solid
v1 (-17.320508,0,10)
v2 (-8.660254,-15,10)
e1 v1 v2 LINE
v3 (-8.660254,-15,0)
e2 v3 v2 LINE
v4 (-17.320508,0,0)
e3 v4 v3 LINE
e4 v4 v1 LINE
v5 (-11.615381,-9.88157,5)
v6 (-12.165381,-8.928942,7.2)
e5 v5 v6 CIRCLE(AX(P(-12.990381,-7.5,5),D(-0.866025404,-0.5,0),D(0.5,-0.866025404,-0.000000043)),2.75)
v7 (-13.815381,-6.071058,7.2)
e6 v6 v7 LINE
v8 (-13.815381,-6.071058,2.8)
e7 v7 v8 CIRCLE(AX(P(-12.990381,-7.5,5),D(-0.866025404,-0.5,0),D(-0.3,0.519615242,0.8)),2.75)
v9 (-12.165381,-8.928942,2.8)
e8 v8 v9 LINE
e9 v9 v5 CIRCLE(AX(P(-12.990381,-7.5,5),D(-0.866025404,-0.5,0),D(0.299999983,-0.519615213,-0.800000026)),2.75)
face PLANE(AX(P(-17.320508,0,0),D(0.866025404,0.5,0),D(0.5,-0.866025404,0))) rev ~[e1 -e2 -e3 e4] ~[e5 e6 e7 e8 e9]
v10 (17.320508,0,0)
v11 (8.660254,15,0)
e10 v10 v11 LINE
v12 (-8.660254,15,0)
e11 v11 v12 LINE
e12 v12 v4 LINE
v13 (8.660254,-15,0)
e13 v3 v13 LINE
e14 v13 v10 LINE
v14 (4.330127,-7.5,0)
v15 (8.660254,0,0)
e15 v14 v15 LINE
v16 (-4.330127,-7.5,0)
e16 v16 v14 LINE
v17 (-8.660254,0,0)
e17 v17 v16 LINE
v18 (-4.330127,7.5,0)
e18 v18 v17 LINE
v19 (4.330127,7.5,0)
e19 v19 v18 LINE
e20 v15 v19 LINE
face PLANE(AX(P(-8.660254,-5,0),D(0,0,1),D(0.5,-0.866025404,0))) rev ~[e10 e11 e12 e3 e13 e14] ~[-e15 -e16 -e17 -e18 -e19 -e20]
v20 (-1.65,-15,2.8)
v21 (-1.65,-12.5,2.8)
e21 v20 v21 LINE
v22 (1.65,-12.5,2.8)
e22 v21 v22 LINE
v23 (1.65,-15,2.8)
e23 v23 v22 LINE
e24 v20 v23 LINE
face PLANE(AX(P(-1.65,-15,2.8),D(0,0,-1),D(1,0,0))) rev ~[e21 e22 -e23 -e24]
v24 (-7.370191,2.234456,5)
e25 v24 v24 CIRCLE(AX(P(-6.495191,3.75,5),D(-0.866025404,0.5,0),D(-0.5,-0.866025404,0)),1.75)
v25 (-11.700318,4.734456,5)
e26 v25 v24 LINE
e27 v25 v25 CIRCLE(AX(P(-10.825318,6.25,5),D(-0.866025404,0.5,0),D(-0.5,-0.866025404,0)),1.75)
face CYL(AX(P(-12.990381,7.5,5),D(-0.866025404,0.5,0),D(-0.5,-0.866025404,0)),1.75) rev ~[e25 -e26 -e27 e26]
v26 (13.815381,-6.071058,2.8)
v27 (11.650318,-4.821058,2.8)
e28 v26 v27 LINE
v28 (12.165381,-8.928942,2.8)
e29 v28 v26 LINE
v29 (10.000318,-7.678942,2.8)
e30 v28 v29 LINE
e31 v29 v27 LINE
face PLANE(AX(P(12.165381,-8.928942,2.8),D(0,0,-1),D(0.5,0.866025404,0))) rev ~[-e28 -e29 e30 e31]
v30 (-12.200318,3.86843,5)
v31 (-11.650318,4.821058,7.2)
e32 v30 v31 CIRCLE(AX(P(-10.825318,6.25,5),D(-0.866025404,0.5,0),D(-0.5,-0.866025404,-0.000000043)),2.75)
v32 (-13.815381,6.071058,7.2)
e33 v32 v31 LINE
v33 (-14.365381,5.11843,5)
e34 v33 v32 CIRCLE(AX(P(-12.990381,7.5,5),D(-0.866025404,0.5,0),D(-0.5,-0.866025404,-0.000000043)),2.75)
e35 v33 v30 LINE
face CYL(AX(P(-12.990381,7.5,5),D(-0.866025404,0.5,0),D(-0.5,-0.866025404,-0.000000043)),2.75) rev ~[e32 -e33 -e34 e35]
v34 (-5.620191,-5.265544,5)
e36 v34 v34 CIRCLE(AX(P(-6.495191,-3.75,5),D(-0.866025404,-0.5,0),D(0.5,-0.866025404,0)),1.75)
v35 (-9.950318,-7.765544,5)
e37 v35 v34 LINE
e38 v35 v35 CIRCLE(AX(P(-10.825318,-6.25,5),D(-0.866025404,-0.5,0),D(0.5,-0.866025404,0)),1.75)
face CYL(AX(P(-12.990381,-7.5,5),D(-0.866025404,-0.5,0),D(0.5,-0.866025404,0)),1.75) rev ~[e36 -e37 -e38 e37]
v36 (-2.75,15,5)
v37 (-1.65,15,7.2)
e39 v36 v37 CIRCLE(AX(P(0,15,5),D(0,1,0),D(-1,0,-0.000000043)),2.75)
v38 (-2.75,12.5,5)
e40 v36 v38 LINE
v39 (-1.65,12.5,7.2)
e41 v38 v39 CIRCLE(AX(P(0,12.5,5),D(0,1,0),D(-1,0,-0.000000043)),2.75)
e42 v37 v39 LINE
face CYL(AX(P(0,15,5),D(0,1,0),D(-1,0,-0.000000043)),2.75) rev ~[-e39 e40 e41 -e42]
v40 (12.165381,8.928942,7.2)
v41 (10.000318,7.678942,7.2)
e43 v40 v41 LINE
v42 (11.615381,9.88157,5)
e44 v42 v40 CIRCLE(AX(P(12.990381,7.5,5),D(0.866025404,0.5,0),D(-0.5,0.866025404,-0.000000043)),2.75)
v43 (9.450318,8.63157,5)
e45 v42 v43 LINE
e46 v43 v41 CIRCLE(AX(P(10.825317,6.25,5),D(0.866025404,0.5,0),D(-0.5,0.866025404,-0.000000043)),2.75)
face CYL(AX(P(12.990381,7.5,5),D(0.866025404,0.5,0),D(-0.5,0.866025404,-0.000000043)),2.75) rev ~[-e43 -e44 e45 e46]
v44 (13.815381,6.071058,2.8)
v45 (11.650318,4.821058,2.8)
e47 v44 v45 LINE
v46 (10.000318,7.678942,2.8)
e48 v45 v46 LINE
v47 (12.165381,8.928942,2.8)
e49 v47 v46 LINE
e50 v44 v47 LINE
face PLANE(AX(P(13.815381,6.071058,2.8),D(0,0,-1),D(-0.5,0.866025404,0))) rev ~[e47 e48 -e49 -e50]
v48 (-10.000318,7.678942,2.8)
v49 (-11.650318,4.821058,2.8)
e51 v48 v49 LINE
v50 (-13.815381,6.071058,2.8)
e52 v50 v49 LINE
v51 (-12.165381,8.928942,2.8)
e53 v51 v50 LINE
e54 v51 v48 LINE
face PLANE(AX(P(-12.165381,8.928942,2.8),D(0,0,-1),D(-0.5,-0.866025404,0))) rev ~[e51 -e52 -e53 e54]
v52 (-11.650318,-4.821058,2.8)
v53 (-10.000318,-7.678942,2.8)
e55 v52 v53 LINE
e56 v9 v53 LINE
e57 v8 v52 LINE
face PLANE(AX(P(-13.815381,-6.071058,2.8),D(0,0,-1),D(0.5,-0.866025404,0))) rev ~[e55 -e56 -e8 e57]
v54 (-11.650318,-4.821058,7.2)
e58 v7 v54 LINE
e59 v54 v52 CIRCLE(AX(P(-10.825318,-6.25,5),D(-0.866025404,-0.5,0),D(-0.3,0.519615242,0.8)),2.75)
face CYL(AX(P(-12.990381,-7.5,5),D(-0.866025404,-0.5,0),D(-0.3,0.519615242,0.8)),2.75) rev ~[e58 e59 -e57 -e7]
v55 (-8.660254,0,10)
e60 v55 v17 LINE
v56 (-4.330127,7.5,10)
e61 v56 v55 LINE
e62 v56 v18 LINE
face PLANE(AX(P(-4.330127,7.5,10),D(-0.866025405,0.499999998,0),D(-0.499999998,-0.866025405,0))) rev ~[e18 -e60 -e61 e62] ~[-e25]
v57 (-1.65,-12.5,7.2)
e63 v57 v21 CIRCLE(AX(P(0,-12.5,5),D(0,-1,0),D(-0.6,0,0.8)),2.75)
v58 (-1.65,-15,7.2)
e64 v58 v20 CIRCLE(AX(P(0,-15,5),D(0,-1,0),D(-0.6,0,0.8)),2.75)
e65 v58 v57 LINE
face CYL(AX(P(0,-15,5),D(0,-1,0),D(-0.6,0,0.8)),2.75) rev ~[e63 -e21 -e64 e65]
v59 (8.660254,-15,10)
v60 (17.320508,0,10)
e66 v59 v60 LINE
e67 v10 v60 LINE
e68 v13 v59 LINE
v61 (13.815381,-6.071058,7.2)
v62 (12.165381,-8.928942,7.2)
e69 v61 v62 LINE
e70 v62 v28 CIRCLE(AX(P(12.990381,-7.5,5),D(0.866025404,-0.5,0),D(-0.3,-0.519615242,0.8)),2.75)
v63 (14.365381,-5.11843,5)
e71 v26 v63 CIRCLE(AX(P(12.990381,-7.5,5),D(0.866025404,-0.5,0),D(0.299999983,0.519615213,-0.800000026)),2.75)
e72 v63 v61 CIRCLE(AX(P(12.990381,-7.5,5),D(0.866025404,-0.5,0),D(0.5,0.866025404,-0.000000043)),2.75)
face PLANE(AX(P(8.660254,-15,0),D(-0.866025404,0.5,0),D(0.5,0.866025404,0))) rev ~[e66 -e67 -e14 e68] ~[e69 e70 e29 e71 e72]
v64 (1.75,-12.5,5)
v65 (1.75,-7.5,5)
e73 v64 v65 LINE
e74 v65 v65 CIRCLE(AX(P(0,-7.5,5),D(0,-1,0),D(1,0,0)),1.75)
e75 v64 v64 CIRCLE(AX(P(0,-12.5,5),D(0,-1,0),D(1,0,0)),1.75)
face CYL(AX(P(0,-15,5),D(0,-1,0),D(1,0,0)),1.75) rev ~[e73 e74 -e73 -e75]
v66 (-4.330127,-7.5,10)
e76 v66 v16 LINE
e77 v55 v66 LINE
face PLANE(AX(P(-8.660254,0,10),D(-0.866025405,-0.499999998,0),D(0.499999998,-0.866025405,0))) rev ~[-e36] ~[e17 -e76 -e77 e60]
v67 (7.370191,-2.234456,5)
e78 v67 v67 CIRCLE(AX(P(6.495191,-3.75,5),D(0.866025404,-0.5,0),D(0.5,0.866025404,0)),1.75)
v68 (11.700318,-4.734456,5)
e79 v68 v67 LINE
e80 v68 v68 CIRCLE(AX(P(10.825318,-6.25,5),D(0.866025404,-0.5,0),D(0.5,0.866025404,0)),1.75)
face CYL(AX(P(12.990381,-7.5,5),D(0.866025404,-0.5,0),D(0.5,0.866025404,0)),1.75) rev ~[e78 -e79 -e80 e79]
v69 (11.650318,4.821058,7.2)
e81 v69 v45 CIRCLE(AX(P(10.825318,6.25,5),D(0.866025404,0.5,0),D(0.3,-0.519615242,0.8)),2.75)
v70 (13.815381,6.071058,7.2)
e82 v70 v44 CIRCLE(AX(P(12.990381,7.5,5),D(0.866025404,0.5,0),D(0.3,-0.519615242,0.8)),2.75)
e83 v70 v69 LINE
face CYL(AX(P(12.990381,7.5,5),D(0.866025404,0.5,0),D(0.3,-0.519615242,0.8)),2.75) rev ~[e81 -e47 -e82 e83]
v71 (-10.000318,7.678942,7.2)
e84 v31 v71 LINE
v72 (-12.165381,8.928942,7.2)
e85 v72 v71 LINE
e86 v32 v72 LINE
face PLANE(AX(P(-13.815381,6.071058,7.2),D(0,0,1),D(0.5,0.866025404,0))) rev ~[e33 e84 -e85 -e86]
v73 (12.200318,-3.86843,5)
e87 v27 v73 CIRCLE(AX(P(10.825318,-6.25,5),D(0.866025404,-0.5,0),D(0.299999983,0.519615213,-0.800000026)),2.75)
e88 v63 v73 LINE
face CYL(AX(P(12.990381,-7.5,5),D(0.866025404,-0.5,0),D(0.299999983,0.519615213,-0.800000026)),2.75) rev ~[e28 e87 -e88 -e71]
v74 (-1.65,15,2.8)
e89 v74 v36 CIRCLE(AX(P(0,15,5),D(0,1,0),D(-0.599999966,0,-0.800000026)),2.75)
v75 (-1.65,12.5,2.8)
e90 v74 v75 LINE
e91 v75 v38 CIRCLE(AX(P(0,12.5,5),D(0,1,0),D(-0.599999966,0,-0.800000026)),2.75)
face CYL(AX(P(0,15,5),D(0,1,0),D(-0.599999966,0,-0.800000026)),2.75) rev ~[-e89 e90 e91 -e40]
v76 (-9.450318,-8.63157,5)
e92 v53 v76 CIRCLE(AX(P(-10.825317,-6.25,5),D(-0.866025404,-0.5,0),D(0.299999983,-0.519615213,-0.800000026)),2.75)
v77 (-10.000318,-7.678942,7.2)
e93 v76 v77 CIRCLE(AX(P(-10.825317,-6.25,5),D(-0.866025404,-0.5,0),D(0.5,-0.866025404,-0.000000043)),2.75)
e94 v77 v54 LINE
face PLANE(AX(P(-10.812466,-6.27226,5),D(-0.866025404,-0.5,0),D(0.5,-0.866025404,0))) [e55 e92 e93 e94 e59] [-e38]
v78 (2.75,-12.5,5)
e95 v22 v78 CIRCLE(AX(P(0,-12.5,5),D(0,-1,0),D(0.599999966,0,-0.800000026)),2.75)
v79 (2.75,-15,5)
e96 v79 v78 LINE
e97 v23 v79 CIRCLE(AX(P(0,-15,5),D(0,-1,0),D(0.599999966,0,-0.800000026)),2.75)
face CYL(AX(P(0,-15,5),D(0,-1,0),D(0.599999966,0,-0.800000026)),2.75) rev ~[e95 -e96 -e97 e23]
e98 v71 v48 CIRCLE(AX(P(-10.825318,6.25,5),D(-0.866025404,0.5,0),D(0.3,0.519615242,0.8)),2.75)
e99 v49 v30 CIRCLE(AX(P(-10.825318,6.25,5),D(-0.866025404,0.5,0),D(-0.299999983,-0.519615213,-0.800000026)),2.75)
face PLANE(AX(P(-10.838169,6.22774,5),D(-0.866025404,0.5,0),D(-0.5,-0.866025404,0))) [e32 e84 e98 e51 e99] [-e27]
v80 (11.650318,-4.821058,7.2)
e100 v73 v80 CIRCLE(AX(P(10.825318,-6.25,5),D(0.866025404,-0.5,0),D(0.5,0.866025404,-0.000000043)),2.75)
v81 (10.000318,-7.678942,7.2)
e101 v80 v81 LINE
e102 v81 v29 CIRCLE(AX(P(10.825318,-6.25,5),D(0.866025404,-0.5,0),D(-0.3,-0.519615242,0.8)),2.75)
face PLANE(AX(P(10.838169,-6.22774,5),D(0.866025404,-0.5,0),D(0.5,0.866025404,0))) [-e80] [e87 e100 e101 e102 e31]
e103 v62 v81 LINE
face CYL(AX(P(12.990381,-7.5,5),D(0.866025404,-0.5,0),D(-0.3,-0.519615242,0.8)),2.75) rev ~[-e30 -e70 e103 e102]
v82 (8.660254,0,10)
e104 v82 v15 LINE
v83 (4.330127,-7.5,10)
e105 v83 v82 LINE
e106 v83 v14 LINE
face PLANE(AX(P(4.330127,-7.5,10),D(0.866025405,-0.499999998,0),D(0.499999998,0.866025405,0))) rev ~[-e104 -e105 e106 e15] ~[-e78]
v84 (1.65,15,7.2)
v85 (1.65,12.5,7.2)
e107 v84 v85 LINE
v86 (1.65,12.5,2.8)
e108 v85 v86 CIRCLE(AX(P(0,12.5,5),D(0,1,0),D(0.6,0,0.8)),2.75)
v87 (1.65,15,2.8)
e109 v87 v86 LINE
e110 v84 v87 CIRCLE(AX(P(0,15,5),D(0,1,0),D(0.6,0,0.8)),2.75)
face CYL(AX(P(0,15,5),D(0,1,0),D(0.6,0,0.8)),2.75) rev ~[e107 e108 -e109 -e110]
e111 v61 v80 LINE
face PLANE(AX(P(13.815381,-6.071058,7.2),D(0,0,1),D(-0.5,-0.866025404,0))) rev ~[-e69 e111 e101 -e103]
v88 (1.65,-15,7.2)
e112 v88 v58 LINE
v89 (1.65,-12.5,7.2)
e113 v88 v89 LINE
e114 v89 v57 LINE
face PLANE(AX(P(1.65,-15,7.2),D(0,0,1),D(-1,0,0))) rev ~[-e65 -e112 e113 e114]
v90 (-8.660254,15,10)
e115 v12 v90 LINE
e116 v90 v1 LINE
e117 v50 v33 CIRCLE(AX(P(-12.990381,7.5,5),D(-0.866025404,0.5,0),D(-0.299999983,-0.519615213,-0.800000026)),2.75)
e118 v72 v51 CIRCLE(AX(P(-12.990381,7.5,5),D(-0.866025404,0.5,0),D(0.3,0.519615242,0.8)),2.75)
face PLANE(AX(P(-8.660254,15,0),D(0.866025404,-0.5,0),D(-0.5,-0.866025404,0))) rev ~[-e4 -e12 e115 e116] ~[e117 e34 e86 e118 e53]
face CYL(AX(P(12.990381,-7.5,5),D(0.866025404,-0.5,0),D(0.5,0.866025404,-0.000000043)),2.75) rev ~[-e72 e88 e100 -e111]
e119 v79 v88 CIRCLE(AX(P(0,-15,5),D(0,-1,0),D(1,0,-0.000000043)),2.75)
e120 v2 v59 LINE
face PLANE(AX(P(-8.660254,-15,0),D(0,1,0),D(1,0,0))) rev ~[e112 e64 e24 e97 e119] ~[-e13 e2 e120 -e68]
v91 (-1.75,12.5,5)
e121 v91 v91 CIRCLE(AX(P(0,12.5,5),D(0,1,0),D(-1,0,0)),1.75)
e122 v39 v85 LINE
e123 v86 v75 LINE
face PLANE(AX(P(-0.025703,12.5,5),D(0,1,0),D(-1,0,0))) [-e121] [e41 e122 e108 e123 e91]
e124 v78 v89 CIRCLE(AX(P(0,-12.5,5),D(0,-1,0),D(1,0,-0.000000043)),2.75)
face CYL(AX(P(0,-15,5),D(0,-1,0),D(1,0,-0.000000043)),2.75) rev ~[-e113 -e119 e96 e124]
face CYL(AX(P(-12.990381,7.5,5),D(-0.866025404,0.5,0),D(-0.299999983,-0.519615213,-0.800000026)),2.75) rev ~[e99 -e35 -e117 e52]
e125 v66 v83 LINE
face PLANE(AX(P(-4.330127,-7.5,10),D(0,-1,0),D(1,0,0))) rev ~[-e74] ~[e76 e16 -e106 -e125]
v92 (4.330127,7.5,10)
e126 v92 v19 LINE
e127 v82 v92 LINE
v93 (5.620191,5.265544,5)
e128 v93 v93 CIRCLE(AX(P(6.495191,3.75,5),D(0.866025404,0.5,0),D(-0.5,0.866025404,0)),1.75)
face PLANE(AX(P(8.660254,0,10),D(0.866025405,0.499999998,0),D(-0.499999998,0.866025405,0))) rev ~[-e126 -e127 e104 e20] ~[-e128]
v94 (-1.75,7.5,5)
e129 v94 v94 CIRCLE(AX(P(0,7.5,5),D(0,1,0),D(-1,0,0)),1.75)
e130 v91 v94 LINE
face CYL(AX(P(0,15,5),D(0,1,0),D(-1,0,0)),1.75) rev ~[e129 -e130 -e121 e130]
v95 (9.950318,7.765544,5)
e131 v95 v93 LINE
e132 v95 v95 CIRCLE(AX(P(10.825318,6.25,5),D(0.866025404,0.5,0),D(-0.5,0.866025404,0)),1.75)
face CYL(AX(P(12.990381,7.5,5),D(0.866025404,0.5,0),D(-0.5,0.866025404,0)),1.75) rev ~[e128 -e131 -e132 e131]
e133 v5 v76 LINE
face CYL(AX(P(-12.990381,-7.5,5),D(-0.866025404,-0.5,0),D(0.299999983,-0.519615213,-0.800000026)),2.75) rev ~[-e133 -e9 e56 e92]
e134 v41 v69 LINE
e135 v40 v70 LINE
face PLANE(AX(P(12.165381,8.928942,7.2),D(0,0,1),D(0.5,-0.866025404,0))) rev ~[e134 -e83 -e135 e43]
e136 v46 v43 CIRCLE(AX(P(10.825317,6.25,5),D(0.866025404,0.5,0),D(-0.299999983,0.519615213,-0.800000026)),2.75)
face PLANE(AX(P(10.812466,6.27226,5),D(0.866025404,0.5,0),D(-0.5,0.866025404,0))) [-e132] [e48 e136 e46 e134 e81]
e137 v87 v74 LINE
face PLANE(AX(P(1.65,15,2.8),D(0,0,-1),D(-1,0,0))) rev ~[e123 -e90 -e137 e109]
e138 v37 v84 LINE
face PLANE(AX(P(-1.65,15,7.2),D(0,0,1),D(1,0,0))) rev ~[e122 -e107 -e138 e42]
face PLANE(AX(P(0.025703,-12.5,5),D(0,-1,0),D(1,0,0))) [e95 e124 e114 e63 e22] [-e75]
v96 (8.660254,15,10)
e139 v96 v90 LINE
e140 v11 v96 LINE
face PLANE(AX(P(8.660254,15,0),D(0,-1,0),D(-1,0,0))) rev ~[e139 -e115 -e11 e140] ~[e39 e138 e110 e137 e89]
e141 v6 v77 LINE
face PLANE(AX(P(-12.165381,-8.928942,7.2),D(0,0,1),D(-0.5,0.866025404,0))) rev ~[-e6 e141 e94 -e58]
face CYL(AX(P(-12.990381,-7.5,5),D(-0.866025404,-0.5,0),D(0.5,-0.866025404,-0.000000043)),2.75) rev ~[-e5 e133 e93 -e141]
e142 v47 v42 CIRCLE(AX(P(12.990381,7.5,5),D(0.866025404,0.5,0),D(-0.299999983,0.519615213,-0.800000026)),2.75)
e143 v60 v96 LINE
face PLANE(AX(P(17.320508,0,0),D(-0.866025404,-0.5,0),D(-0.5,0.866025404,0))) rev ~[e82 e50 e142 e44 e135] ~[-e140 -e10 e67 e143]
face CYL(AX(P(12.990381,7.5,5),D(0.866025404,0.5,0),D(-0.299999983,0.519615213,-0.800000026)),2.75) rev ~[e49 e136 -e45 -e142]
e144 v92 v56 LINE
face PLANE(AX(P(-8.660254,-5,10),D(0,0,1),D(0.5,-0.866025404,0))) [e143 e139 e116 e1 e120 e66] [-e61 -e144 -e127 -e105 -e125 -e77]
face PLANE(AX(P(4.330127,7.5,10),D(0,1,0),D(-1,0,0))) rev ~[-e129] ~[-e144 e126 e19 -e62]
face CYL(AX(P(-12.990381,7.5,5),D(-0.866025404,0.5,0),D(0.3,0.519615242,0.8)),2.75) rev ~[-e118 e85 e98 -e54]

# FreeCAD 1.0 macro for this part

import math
import FreeCAD as App
import Part
import Sketcher
Q = App.Units.Quantity


def add_polygon(sketch, points):
    """Adds a closed chain of lines whose ends are joined by coincident constraints."""
    first, n = sketch.GeometryCount, len(points)
    for a, b in zip(points, points[1:] + points[:1]):
        sketch.addGeometry(Part.LineSegment(App.Vector(*a, 0), App.Vector(*b, 0)), False)
    for i in range(n):
        sketch.addConstraint(Sketcher.Constraint("Coincident", first + i, 2, first + (i + 1) % n, 1))

doc = App.newDocument("Part")
body = doc.addObject("PartDesign::Body", "Body")

sketch1 = doc.addObject("Sketcher::SketchObject", "Sketch")
body.addObject(sketch1)
sketch1.AttachmentSupport = (doc.XY_Plane, [""])
sketch1.MapMode = "FlatFace"
add_polygon(sketch1, [(-9, -15), (9, -15), (0, 0)])
sketch1.addConstraint(Sketcher.Constraint("Horizontal", 0))
sketch1.addConstraint(Sketcher.Constraint("Coincident", 1, 2, -1, 1))
sketch1.addConstraint(Sketcher.Constraint("Equal", 1, 2))
sketch1.addConstraint(Sketcher.Constraint("Angle", 1, Q("120 deg")))
sketch1.addConstraint(Sketcher.Constraint("DistanceY", 0, 2, -1, 1, Q("15 mm")))
pad1 = doc.addObject("PartDesign::Pad", "Pad")
body.addObject(pad1)
pad1.Profile = sketch1
pad1.Length = 10

sketch2 = doc.addObject("Sketcher::SketchObject", "Sketch001")
body.addObject(sketch2)
sketch2.AttachmentSupport = (doc.XZ_Plane, [""])
sketch2.MapMode = "FlatFace"
sketch2.AttachmentOffset = App.Placement(App.Vector(0, 0, 15), App.Rotation())
sketch2.addGeometry(Part.Circle(App.Vector(0, 5, 0), App.Vector(0, 0, 1), 1.8), False)
sketch2.addConstraint(Sketcher.Constraint("PointOnObject", 0, 3, -2))
sketch2.addConstraint(Sketcher.Constraint("Diameter", 0, Q("3.5 mm")))
sketch2.addConstraint(Sketcher.Constraint("DistanceY", -1, 1, 0, 3, Q("5 mm")))
pocket1 = doc.addObject("PartDesign::Pocket", "Pocket")
body.addObject(pocket1)
pocket1.Profile = sketch2
pocket1.Length = 25

sketch3 = doc.addObject("Sketcher::SketchObject", "Sketch002")
body.addObject(sketch3)
sketch3.AttachmentSupport = (doc.XZ_Plane, [""])
sketch3.MapMode = "FlatFace"
sketch3.AttachmentOffset = App.Placement(App.Vector(0, 0, 15), App.Rotation())
sketch3.addGeometry(Part.ArcOfCircle(Part.Circle(App.Vector(0, 5, 0), App.Vector(0, 0, 1), 2.7), math.radians(-53), math.radians(0)), False)
sketch3.addGeometry(Part.ArcOfCircle(Part.Circle(App.Vector(0, 5, 0), App.Vector(0, 0, 1), 2.7), math.radians(0), math.radians(53)), False)
sketch3.addGeometry(Part.LineSegment(App.Vector(1.6, 7.2, 0), App.Vector(-1.6, 7.2, 0)), False)
sketch3.addGeometry(Part.ArcOfCircle(Part.Circle(App.Vector(0, 5, 0), App.Vector(0, 0, 1), 2.8), math.radians(127), math.radians(233)), False)
sketch3.addGeometry(Part.LineSegment(App.Vector(-1.6, 2.8, 0), App.Vector(1.6, 2.8, 0)), False)
sketch3.addGeometry(Part.Circle(App.Vector(0, 5, 0), App.Vector(0, 0, 1), 1.8), False)
sketch3.addConstraint(Sketcher.Constraint("Tangent", 0, 2, 1, 1))
sketch3.addConstraint(Sketcher.Constraint("Coincident", 1, 2, 2, 1))
sketch3.addConstraint(Sketcher.Constraint("Coincident", 2, 2, 3, 1))
sketch3.addConstraint(Sketcher.Constraint("Coincident", 3, 2, 4, 1))
sketch3.addConstraint(Sketcher.Constraint("Coincident", 4, 2, 0, 1))
sketch3.addConstraint(Sketcher.Constraint("Horizontal", 2))
sketch3.addConstraint(Sketcher.Constraint("Horizontal", 4))
sketch3.addConstraint(Sketcher.Constraint("Coincident", 3, 3, 0, 3))
sketch3.addConstraint(Sketcher.Constraint("Coincident", 5, 3, 0, 3))
sketch3.addConstraint(Sketcher.Constraint("Equal", 0, 1))
sketch3.addConstraint(Sketcher.Constraint("Equal", 1, 3))
sketch3.addConstraint(Sketcher.Constraint("PointOnObject", 0, 3, -2))
sketch3.addConstraint(Sketcher.Constraint("Horizontal", 5, 3, 0, 2))
sketch3.addConstraint(Sketcher.Constraint("Vertical", 2, 2, 3, 2))
sketch3.addConstraint(Sketcher.Constraint("Diameter", 5, Q("3.5 mm")))
sketch3.addConstraint(Sketcher.Constraint("Radius", 0, Q("2.75 mm")))
sketch3.addConstraint(Sketcher.Constraint("DistanceX", 2, 2, 2, 1, Q("3.3 mm")))
sketch3.addConstraint(Sketcher.Constraint("DistanceY", -1, 1, 0, 3, Q("5 mm")))
pocket2 = doc.addObject("PartDesign::Pocket", "Pocket001")
body.addObject(pocket2)
pocket2.Profile = sketch3
pocket2.Length = 2.5
body2 = doc.addObject("PartDesign::Body", "Body001")
doc.recompute()

body2.BaseFeature = body
doc.recompute()

body3 = doc.addObject("PartDesign::Body", "Body002")
body3.BaseFeature = body
body3.Placement = App.Placement(App.Vector(0, 0, 0), App.Rotation(App.Vector(0, 0, 1), 60))
boolean = doc.addObject("PartDesign::Boolean", "Boolean")
body2.addObject(boolean)
boolean.Type = "Fuse"
boolean.addObjects([body3])
doc.recompute()

body4 = doc.addObject("PartDesign::Body", "Body003")
body4.BaseFeature = body
body4.Placement = App.Placement(App.Vector(0, 0, 0), App.Rotation(App.Vector(0, 0, 1), 120))
boolean2 = doc.addObject("PartDesign::Boolean", "Boolean001")
body2.addObject(boolean2)
boolean2.Type = "Fuse"
boolean2.addObjects([body4])
doc.recompute()

body5 = doc.addObject("PartDesign::Body", "Body004")
body5.BaseFeature = body
body5.Placement = App.Placement(App.Vector(0, 0, 0), App.Rotation(App.Vector(0, 0, 1), 180))
boolean3 = doc.addObject("PartDesign::Boolean", "Boolean002")
body2.addObject(boolean3)
boolean3.Type = "Fuse"
boolean3.addObjects([body5])
doc.recompute()

body6 = doc.addObject("PartDesign::Body", "Body005")
body6.BaseFeature = body
body6.Placement = App.Placement(App.Vector(0, 0, 0), App.Rotation(App.Vector(0, 0, 1), 240))
boolean4 = doc.addObject("PartDesign::Boolean", "Boolean003")
body2.addObject(boolean4)
boolean4.Type = "Fuse"
boolean4.addObjects([body6])
doc.recompute()

body.Placement = App.Placement(App.Vector(0, 0, 0), App.Rotation(App.Vector(0, 0, 1), 300))
boolean5 = doc.addObject("PartDesign::Boolean", "Boolean004")
body2.addObject(boolean5)
boolean5.Type = "Fuse"
boolean5.addObjects([body])

sketch4 = doc.addObject("Sketcher::SketchObject", "Sketch003")
body2.addObject(sketch4)
sketch4.AttachmentSupport = (doc.getObject("XY_Plane001"), [""])
sketch4.MapMode = "FlatFace"
sketch4.AttachmentOffset = App.Placement(App.Vector(0, 0, 10), App.Rotation())
add_polygon(sketch4, [(-4, -8), (4, -8), (9, 0), (4, 8), (-4, 8), (-9, 0)])
sketch4.addConstraint(Sketcher.Constraint("Horizontal", 0))
sketch4.addConstraint(Sketcher.Constraint("Horizontal", 3))
sketch4.addConstraint(Sketcher.Constraint("Symmetric", 0, 2, 3, 2, -1, 1))
sketch4.addConstraint(Sketcher.Constraint("Symmetric", 1, 2, 4, 2, -1, 1))
sketch4.addConstraint(Sketcher.Constraint("PointOnObject", 1, 2, -1))
sketch4.addConstraint(Sketcher.Constraint("Parallel", 2, 5))
sketch4.addConstraint(Sketcher.Constraint("Vertical", 0, 2, 2, 2))
sketch4.addConstraint(Sketcher.Constraint("Angle", 1, Q("60 deg")))
sketch4.addConstraint(Sketcher.Constraint("DistanceY", 0, 2, 2, 2, Q("15 mm")))
sketch4.addConstraint(Sketcher.Constraint("DistanceX", 0, 1, 0, 2, Q("8.660254 mm")))
pocket3 = doc.addObject("PartDesign::Pocket", "Pocket002")
body2.addObject(pocket3)
pocket3.Profile = sketch4
pocket3.Length = 25

doc.recompute()
